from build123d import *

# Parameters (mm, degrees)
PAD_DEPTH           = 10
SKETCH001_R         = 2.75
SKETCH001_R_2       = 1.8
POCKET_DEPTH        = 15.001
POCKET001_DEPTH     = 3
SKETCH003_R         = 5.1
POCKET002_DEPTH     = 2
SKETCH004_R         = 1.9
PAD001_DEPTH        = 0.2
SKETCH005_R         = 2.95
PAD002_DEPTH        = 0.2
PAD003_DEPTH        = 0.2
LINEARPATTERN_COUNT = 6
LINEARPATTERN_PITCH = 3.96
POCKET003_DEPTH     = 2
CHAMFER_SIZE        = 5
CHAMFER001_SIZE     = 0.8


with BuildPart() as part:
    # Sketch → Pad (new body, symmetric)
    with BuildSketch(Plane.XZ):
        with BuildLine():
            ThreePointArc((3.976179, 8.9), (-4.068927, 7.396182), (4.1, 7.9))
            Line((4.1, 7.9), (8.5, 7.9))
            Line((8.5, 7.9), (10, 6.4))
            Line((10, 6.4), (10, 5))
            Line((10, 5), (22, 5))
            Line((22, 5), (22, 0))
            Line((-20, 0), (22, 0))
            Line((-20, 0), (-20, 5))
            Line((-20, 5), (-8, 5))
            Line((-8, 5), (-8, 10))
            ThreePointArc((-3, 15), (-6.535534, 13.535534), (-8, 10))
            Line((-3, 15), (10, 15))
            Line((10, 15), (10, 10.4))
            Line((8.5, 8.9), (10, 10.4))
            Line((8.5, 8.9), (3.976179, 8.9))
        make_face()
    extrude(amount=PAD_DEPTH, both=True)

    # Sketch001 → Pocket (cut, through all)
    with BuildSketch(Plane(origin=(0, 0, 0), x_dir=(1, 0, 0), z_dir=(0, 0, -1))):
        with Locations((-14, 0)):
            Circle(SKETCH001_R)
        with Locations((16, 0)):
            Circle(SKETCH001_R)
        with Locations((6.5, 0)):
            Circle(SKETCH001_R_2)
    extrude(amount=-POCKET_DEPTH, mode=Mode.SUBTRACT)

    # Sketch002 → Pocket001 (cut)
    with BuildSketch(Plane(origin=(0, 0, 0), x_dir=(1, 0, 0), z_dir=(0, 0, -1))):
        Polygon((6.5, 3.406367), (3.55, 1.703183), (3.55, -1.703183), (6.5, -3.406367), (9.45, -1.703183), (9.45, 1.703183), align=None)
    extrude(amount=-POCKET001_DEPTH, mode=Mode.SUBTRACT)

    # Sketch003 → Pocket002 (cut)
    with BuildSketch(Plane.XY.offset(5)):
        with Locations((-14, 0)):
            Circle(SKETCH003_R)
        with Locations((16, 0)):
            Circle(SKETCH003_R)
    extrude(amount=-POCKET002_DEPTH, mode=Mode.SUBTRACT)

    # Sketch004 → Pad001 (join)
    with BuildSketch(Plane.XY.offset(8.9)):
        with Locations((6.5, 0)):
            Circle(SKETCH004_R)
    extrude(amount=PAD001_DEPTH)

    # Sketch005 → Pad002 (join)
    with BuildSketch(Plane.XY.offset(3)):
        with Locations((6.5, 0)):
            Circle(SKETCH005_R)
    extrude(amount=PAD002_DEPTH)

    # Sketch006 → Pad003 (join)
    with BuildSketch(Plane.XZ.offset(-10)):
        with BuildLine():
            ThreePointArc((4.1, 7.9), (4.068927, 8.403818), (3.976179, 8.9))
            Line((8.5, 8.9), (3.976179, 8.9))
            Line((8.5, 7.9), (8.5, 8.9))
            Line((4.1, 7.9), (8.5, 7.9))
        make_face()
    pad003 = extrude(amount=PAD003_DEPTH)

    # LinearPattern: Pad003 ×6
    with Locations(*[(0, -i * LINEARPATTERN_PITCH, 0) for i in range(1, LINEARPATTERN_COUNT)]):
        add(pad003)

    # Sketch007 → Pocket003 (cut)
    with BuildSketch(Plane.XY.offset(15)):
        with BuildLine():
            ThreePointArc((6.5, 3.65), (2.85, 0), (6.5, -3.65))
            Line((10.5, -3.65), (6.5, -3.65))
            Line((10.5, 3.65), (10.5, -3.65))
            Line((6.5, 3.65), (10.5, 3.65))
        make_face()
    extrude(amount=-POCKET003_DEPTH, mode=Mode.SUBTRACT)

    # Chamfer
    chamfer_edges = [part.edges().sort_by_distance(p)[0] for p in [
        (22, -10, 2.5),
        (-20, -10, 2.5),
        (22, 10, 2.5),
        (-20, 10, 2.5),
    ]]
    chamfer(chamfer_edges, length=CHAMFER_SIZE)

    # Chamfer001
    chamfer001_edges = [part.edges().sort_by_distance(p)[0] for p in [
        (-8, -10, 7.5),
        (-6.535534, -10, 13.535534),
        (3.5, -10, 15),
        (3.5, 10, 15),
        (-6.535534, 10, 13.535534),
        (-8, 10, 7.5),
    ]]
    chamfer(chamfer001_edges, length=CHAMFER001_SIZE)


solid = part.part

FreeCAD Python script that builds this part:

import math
import FreeCAD as App
import Part
import Sketcher
Q = App.Units.Quantity


def edges_at(feature, points):
    """Names of the edges that pass closest to the given points."""
    edges = feature.Shape.Edges
    near = lambda p: min(range(len(edges)), key=lambda i: edges[i].distToShape(Part.Vertex(*p))[0])
    return sorted({f"Edge{near(p) + 1}" for p in points})


def add_polygon(sketch, points):
    """Adds a closed chain of lines whose ends are joined by coincident constraints."""
    first, n = sketch.GeometryCount, len(points)
    for a, b in zip(points, points[1:] + points[:1]):
        sketch.addGeometry(Part.LineSegment(App.Vector(*a, 0), App.Vector(*b, 0)), False)
    for i in range(n):
        sketch.addConstraint(Sketcher.Constraint("Coincident", first + i, 2, first + (i + 1) % n, 1))

doc = App.newDocument("Part")
params = doc.addObject("Spreadsheet::Sheet", "Params")
for row, (alias, value) in enumerate([
    ("sketch1_radius", "5 mm"),
    ("sketch1_radius2", "4.1 mm"),
    ("sketch1_width", "13 mm"),
    ("sketch1_width2", "12 mm"),
    ("sketch1_height", "5 mm"),
    ("pad1_length", "20 mm"),
    ("sketch2_diameter", "5.5 mm"),
    ("sketch2_diameter2", "3.6 mm"),
    ("pocket2_length", "3 mm"),
    ("sketch4_diameter", "10.2 mm"),
    ("pocket3_length", "2 mm"),
    ("sketch5_diameter", "3.8 mm"),
    ("pad2_length", "0.2 mm"),
    ("sketch6_diameter", "5.9 mm"),
    ("pad3_length", "0.2 mm"),
    ("sketch7_height", "1 mm"),
    ("sketch7_width", "4.4 mm"),
    ("pad4_length", "0.2 mm"),
    ("linearpattern_pitch", "3.96 mm"),
    ("sketch8_width", "4 mm"),
    ("sketch8_radius", "3.65 mm"),
    ("pocket4_length", "2 mm"),
    ("chamfer_size", "5 mm"),
    ("chamfer2_size", "0.8 mm"),
], start=1):
    params.set(f"A{row}", alias)
    params.set(f"B{row}", "=" + value)
    params.setAlias(f"B{row}", alias)

body = doc.addObject("PartDesign::Body", "Body")

# Sketch on XZ plane
sketch1 = body.newObject("Sketcher::SketchObject", "Sketch")
sketch1.AttachmentSupport = (doc.getObject("XZ_Plane"), [""])
sketch1.MapMode = "FlatFace"
sketch1.addGeometry([
    Part.ArcOfCircle(Part.Circle(App.Vector(0, 7.9, 0), App.Vector(0, 0, 1), 4.1), math.radians(14), math.radians(360)),  # 0
    Part.LineSegment(App.Vector(4, 8.9, 0), App.Vector(8.5, 8.9, 0)),  # 1
    Part.LineSegment(App.Vector(8.5, 8.9, 0), App.Vector(10, 10.4, 0)),  # 2
    Part.LineSegment(App.Vector(10, 10.4, 0), App.Vector(10, 15, 0)),  # 3
    Part.LineSegment(App.Vector(10, 15, 0), App.Vector(-3, 15, 0)),  # 4
    Part.ArcOfCircle(Part.Circle(App.Vector(-3, 10, 0), App.Vector(0, 0, 1), 5), math.radians(90), math.radians(180)),  # 5
    Part.LineSegment(App.Vector(-8, 10, 0), App.Vector(-8, 5, 0)),  # 6
    Part.LineSegment(App.Vector(-8, 5, 0), App.Vector(-20, 5, 0)),  # 7
    Part.LineSegment(App.Vector(-20, 5, 0), App.Vector(-20, 0, 0)),  # 8
    Part.LineSegment(App.Vector(-20, 0, 0), App.Vector(22, 0, 0)),  # 9
    Part.LineSegment(App.Vector(22, 0, 0), App.Vector(22, 5, 0)),  # 10
    Part.LineSegment(App.Vector(22, 5, 0), App.Vector(10, 5, 0)),  # 11
    Part.LineSegment(App.Vector(10, 5, 0), App.Vector(10, 6.4, 0)),  # 12
    Part.LineSegment(App.Vector(10, 6.4, 0), App.Vector(8.5, 7.9, 0)),  # 13
    Part.LineSegment(App.Vector(8.5, 7.9, 0), App.Vector(4.1, 7.9, 0)),  # 14
], False)
sketch1.addConstraint([
    Sketcher.Constraint("Coincident", 0, 1, 1, 1),
    Sketcher.Constraint("Coincident", 1, 2, 2, 1),
    Sketcher.Constraint("Coincident", 2, 2, 3, 1),
    Sketcher.Constraint("Coincident", 3, 2, 4, 1),
    Sketcher.Constraint("Tangent", 4, 2, 5, 1),
    Sketcher.Constraint("Tangent", 5, 2, 6, 1),
    Sketcher.Constraint("Coincident", 6, 2, 7, 1),
    Sketcher.Constraint("Coincident", 7, 2, 8, 1),
    Sketcher.Constraint("Coincident", 8, 2, 9, 1),
    Sketcher.Constraint("Coincident", 9, 2, 10, 1),
    Sketcher.Constraint("Coincident", 10, 2, 11, 1),
    Sketcher.Constraint("Coincident", 11, 2, 12, 1),
    Sketcher.Constraint("Coincident", 12, 2, 13, 1),
    Sketcher.Constraint("Coincident", 13, 2, 14, 1),
    Sketcher.Constraint("Coincident", 14, 2, 0, 2),
    Sketcher.Constraint("Horizontal", 1),
    Sketcher.Constraint("Vertical", 3),
    Sketcher.Constraint("Horizontal", 4),
    Sketcher.Constraint("Vertical", 6),
    Sketcher.Constraint("Horizontal", 7),
    Sketcher.Constraint("Vertical", 8),
    Sketcher.Constraint("Horizontal", 9),
    Sketcher.Constraint("Vertical", 10),
    Sketcher.Constraint("Horizontal", 11),
    Sketcher.Constraint("Vertical", 12),
    Sketcher.Constraint("Horizontal", 14),
    Sketcher.Constraint("PointOnObject", 0, 3, -2),
    Sketcher.Constraint("PointOnObject", 8, 2, -1),
    Sketcher.Constraint("Perpendicular", 2, 13),
    Sketcher.Constraint("Horizontal", 7, 2, 10, 2),
    Sketcher.Constraint("Horizontal", 0, 3, 13, 2),
    Sketcher.Constraint("Vertical", 3, 2, 11, 2),
    Sketcher.Constraint("Vertical", 1, 2, 13, 2),
    Sketcher.Constraint("Equal", 7, 11),
    Sketcher.Constraint("Equal", 6, 8),
    Sketcher.Constraint("Equal", 2, 13),
    Sketcher.Constraint("Radius", 5, Q("5 mm")),
    Sketcher.Constraint("Radius", 0, Q("4.1 mm")),
    Sketcher.Constraint("DistanceX", 4, 2, 4, 1, Q("13 mm")),
    Sketcher.Constraint("DistanceX", 7, 2, 7, 1, Q("12 mm")),
    Sketcher.Constraint("DistanceY", 6, 2, 6, 1, Q("5 mm")),
    Sketcher.Constraint("DistanceX", 14, 2, 14, 1, Q("4.4 mm")),
    Sketcher.Constraint("DistanceY", 3, 1, 3, 2, Q("4.6 mm")),
    Sketcher.Constraint("DistanceY", 12, 1, 12, 2, Q("1.4 mm")),
    Sketcher.Constraint("DistanceX", 5, 3, -1, 1, Q("3 mm")),
])
sketch1.setExpression("Constraints[36]", "Params.sketch1_radius")
sketch1.setExpression("Constraints[37]", "Params.sketch1_radius2")
sketch1.setExpression("Constraints[38]", "Params.sketch1_width")
sketch1.setExpression("Constraints[39]", "Params.sketch1_width2")
sketch1.setExpression("Constraints[40]", "Params.sketch1_height")
pad1 = body.newObject("PartDesign::Pad", "Pad")
pad1.Profile = sketch1
pad1.setExpression("Length", "Params.pad1_length")
pad1.Midplane = True

# Sketch on XY plane
sketch2 = body.newObject("Sketcher::SketchObject", "Sketch001")
sketch2.AttachmentSupport = (doc.getObject("XY_Plane"), [""])
sketch2.MapMode = "FlatFace"
sketch2.addGeometry([
    Part.Circle(App.Vector(-14, 0, 0), App.Vector(0, 0, 1), 2.8),
    Part.Circle(App.Vector(16, 0, 0), App.Vector(0, 0, 1), 2.8),
    Part.Circle(App.Vector(6.5, 0, 0), App.Vector(0, 0, 1), 1.8),
], False)
sketch2.addConstraint([
    Sketcher.Constraint("Equal", 0, 1),
    Sketcher.Constraint("PointOnObject", 0, 3, -1),
    Sketcher.Constraint("PointOnObject", 1, 3, -1),
    Sketcher.Constraint("PointOnObject", 2, 3, -1),
    Sketcher.Constraint("Diameter", 0, Q("5.5 mm")),
    Sketcher.Constraint("Diameter", 2, Q("3.6 mm")),
    Sketcher.Constraint("DistanceX", 0, 3, -1, 1, Q("14 mm")),
    Sketcher.Constraint("DistanceX", -1, 1, 1, 3, Q("16 mm")),
    Sketcher.Constraint("DistanceX", -1, 1, 2, 3, Q("6.5 mm")),
])
sketch2.setExpression("Constraints[4]", "Params.sketch2_diameter")
sketch2.setExpression("Constraints[5]", "Params.sketch2_diameter2")
pocket1 = body.newObject("PartDesign::Pocket", "Pocket")
pocket1.Profile = sketch2
pocket1.Type = "ThroughAll"
pocket1.Reversed = True

# Sketch on XY plane
sketch3 = body.newObject("Sketcher::SketchObject", "Sketch002")
sketch3.AttachmentSupport = (doc.getObject("XY_Plane"), [""])
sketch3.MapMode = "FlatFace"
add_polygon(sketch3, [(6.5, -3.4), (3.5, -1.7), (3.5, 1.7), (6.5, 3.4), (9.4, 1.7), (9.4, -1.7)])  # lines 0-5
sketch3.addConstraint([
    Sketcher.Constraint("Vertical", 1),
    Sketcher.Constraint("Vertical", 4),
    Sketcher.Constraint("Symmetric", 2, 2, 5, 2, -1),
    Sketcher.Constraint("Parallel", 0, 3),
    Sketcher.Constraint("Parallel", 2, 5),
    Sketcher.Constraint("Horizontal", 1, 2, 3, 2),
    Sketcher.Constraint("Horizontal", 0, 2, 4, 2),
    Sketcher.Constraint("Angle", 0, Q("149.99999 deg")),
    Sketcher.Constraint("DistanceX", -1, 1, 2, 2, Q("6.5 mm")),
    Sketcher.Constraint("DistanceX", 1, 2, 3, 2, Q("5.9 mm")),
    Sketcher.Constraint("DistanceY", 1, 1, 1, 2, Q("3.406366 mm")),
])
pocket2 = body.newObject("PartDesign::Pocket", "Pocket001")
pocket2.Profile = sketch3
pocket2.setExpression("Length", "Params.pocket2_length")
pocket2.Reversed = True

# Sketch on XY plane
sketch4 = body.newObject("Sketcher::SketchObject", "Sketch003")
sketch4.AttachmentSupport = (doc.getObject("XY_Plane"), [""])
sketch4.MapMode = "FlatFace"
sketch4.AttachmentOffset = App.Placement(App.Vector(0, 0, 5), App.Rotation())
sketch4.addGeometry([
    Part.Circle(App.Vector(-14, 0, 0), App.Vector(0, 0, 1), 5),
    Part.Circle(App.Vector(16, 0, 0), App.Vector(0, 0, 1), 5),
], False)
sketch4.addConstraint([
    Sketcher.Constraint("Equal", 0, 1),
    Sketcher.Constraint("PointOnObject", 0, 3, -1),
    Sketcher.Constraint("PointOnObject", 1, 3, -1),
    Sketcher.Constraint("Diameter", 0, Q("10.2 mm")),
    Sketcher.Constraint("DistanceX", 0, 3, -1, 1, Q("14 mm")),
    Sketcher.Constraint("DistanceX", -1, 1, 1, 3, Q("16 mm")),
])
sketch4.setExpression("Constraints[3]", "Params.sketch4_diameter")
pocket3 = body.newObject("PartDesign::Pocket", "Pocket002")
pocket3.Profile = sketch4
pocket3.setExpression("Length", "Params.pocket3_length")

# Sketch on XY plane
sketch5 = body.newObject("Sketcher::SketchObject", "Sketch004")
sketch5.AttachmentSupport = (doc.getObject("XY_Plane"), [""])
sketch5.MapMode = "FlatFace"
sketch5.AttachmentOffset = App.Placement(App.Vector(0, 0, 8.9), App.Rotation())
sketch5.addGeometry(Part.Circle(App.Vector(6.5, 0, 0), App.Vector(0, 0, 1), 1.9), False)
sketch5.addConstraint([
    Sketcher.Constraint("PointOnObject", 0, 3, -1),
    Sketcher.Constraint("Diameter", 0, Q("3.8 mm")),
    Sketcher.Constraint("DistanceX", -1, 1, 0, 3, Q("6.5 mm")),
])
sketch5.setExpression("Constraints[1]", "Params.sketch5_diameter")
pad2 = body.newObject("PartDesign::Pad", "Pad001")
pad2.Profile = sketch5
pad2.setExpression("Length", "Params.pad2_length")

# Sketch on XY plane
sketch6 = body.newObject("Sketcher::SketchObject", "Sketch005")
sketch6.AttachmentSupport = (doc.getObject("XY_Plane"), [""])
sketch6.MapMode = "FlatFace"
sketch6.AttachmentOffset = App.Placement(App.Vector(0, 0, 3), App.Rotation())
sketch6.addGeometry(Part.Circle(App.Vector(6.5, 0, 0), App.Vector(0, 0, 1), 3), False)
sketch6.addConstraint([
    Sketcher.Constraint("PointOnObject", 0, 3, -1),
    Sketcher.Constraint("Diameter", 0, Q("5.9 mm")),
    Sketcher.Constraint("DistanceX", -1, 1, 0, 3, Q("6.5 mm")),
])
sketch6.setExpression("Constraints[1]", "Params.sketch6_diameter")
pad3 = body.newObject("PartDesign::Pad", "Pad002")
pad3.Profile = sketch6
pad3.setExpression("Length", "Params.pad3_length")

# Sketch on XZ plane
sketch7 = body.newObject("Sketcher::SketchObject", "Sketch006")
sketch7.AttachmentSupport = (doc.getObject("XZ_Plane"), [""])
sketch7.MapMode = "FlatFace"
sketch7.AttachmentOffset = App.Placement(App.Vector(0, 0, -10), App.Rotation())
sketch7.addGeometry([
    Part.ArcOfCircle(Part.Circle(App.Vector(0, 7.9, 0), App.Vector(0, 0, 1), 4.1), math.radians(0), math.radians(14.12)),
    Part.LineSegment(App.Vector(4.1, 7.9, 0), App.Vector(8.5, 7.9, 0)),
    Part.LineSegment(App.Vector(8.5, 7.9, 0), App.Vector(8.5, 8.9, 0)),
    Part.LineSegment(App.Vector(8.5, 8.9, 0), App.Vector(4, 8.9, 0)),
], False)
sketch7.addConstraint([
    Sketcher.Constraint("Coincident", 0, 1, 1, 1),
    Sketcher.Constraint("Coincident", 1, 2, 2, 1),
    Sketcher.Constraint("Coincident", 2, 2, 3, 1),
    Sketcher.Constraint("Coincident", 3, 2, 0, 2),
    Sketcher.Constraint("Horizontal", 1),
    Sketcher.Constraint("Vertical", 2),
    Sketcher.Constraint("Horizontal", 3),
    Sketcher.Constraint("DistanceY", 2, 1, 2, 2, Q("1 mm")),
    Sketcher.Constraint("DistanceX", 1, 1, 1, 2, Q("4.4 mm")),
    Sketcher.Constraint("DistanceY", 0, 3, 2, 2, Q("1.000001 mm")),
    Sketcher.Constraint("DistanceY", -1, 1, 0, 3, Q("7.899999 mm")),
    Sketcher.Constraint("DistanceX", -1, 1, 0, 1, Q("4.1 mm")),
    Sketcher.Constraint("Radius", 0, Q("4.100003 mm")),
])
sketch7.setExpression("Constraints[7]", "Params.sketch7_height")
sketch7.setExpression("Constraints[8]", "Params.sketch7_width")
pad4 = body.newObject("PartDesign::Pad", "Pad003")
pad4.Profile = sketch7
pad4.setExpression("Length", "Params.pad4_length")
doc.recompute()

linearpattern = body.newObject("PartDesign::LinearPattern", "LinearPattern")
linearpattern.Originals = [pad4]
linearpattern.Direction = (doc.getObject("Y_Axis"), [""])
linearpattern.Mode = "offset"
linearpattern.setExpression("Offset", "Params.linearpattern_pitch")
linearpattern.Occurrences = 6
linearpattern.Reversed = True
body.Tip = linearpattern

# Sketch on XY plane
sketch8 = body.newObject("Sketcher::SketchObject", "Sketch007")
sketch8.AttachmentSupport = (doc.getObject("XY_Plane"), [""])
sketch8.MapMode = "FlatFace"
sketch8.AttachmentOffset = App.Placement(App.Vector(0, 0, 15), App.Rotation())
sketch8.addGeometry([
    Part.ArcOfCircle(Part.Circle(App.Vector(6.5, 0, 0), App.Vector(0, 0, 1), 3.6), math.radians(90), math.radians(270)),
    Part.LineSegment(App.Vector(6.5, -3.6, 0), App.Vector(10.5, -3.6, 0)),
    Part.LineSegment(App.Vector(10.5, -3.6, 0), App.Vector(10.5, 3.6, 0)),
    Part.LineSegment(App.Vector(10.5, 3.6, 0), App.Vector(6.5, 3.6, 0)),
], False)
sketch8.addConstraint([
    Sketcher.Constraint("Tangent", 0, 2, 1, 1),
    Sketcher.Constraint("Coincident", 1, 2, 2, 1),
    Sketcher.Constraint("Coincident", 2, 2, 3, 1),
    Sketcher.Constraint("Tangent", 3, 2, 0, 1),
    Sketcher.Constraint("Horizontal", 1),
    Sketcher.Constraint("Vertical", 2),
    Sketcher.Constraint("Horizontal", 3),
    Sketcher.Constraint("PointOnObject", 0, 3, -1),
    Sketcher.Constraint("DistanceX", 1, 1, 1, 2, Q("4 mm")),
    Sketcher.Constraint("Radius", 0, Q("3.65 mm")),
    Sketcher.Constraint("DistanceX", -1, 1, 0, 3, Q("6.5 mm")),
])
sketch8.setExpression("Constraints[8]", "Params.sketch8_width")
sketch8.setExpression("Constraints[9]", "Params.sketch8_radius")
pocket4 = body.newObject("PartDesign::Pocket", "Pocket003")
pocket4.Profile = sketch8
pocket4.setExpression("Length", "Params.pocket4_length")
doc.recompute()

chamfer = body.newObject("PartDesign::Chamfer", "Chamfer")
chamfer.Base = (pocket4, edges_at(pocket4, [
    (22, -10, 2.5),
    (-20, -10, 2.5),
    (22, 10, 2.5),
    (-20, 10, 2.5),
]))
chamfer.setExpression("Size", "Params.chamfer_size")
doc.recompute()

chamfer2 = body.newObject("PartDesign::Chamfer", "Chamfer001")
chamfer2.Base = (chamfer, edges_at(chamfer, [
    (-8, -10, 7.5),
    (-6.536, -10, 13.536),
    (3.5, -10, 15),
    (3.5, 10, 15),
    (-6.536, 10, 13.536),
    (-8, 10, 7.5),
]))
chamfer2.setExpression("Size", "Params.chamfer2_size")

doc.recompute()
